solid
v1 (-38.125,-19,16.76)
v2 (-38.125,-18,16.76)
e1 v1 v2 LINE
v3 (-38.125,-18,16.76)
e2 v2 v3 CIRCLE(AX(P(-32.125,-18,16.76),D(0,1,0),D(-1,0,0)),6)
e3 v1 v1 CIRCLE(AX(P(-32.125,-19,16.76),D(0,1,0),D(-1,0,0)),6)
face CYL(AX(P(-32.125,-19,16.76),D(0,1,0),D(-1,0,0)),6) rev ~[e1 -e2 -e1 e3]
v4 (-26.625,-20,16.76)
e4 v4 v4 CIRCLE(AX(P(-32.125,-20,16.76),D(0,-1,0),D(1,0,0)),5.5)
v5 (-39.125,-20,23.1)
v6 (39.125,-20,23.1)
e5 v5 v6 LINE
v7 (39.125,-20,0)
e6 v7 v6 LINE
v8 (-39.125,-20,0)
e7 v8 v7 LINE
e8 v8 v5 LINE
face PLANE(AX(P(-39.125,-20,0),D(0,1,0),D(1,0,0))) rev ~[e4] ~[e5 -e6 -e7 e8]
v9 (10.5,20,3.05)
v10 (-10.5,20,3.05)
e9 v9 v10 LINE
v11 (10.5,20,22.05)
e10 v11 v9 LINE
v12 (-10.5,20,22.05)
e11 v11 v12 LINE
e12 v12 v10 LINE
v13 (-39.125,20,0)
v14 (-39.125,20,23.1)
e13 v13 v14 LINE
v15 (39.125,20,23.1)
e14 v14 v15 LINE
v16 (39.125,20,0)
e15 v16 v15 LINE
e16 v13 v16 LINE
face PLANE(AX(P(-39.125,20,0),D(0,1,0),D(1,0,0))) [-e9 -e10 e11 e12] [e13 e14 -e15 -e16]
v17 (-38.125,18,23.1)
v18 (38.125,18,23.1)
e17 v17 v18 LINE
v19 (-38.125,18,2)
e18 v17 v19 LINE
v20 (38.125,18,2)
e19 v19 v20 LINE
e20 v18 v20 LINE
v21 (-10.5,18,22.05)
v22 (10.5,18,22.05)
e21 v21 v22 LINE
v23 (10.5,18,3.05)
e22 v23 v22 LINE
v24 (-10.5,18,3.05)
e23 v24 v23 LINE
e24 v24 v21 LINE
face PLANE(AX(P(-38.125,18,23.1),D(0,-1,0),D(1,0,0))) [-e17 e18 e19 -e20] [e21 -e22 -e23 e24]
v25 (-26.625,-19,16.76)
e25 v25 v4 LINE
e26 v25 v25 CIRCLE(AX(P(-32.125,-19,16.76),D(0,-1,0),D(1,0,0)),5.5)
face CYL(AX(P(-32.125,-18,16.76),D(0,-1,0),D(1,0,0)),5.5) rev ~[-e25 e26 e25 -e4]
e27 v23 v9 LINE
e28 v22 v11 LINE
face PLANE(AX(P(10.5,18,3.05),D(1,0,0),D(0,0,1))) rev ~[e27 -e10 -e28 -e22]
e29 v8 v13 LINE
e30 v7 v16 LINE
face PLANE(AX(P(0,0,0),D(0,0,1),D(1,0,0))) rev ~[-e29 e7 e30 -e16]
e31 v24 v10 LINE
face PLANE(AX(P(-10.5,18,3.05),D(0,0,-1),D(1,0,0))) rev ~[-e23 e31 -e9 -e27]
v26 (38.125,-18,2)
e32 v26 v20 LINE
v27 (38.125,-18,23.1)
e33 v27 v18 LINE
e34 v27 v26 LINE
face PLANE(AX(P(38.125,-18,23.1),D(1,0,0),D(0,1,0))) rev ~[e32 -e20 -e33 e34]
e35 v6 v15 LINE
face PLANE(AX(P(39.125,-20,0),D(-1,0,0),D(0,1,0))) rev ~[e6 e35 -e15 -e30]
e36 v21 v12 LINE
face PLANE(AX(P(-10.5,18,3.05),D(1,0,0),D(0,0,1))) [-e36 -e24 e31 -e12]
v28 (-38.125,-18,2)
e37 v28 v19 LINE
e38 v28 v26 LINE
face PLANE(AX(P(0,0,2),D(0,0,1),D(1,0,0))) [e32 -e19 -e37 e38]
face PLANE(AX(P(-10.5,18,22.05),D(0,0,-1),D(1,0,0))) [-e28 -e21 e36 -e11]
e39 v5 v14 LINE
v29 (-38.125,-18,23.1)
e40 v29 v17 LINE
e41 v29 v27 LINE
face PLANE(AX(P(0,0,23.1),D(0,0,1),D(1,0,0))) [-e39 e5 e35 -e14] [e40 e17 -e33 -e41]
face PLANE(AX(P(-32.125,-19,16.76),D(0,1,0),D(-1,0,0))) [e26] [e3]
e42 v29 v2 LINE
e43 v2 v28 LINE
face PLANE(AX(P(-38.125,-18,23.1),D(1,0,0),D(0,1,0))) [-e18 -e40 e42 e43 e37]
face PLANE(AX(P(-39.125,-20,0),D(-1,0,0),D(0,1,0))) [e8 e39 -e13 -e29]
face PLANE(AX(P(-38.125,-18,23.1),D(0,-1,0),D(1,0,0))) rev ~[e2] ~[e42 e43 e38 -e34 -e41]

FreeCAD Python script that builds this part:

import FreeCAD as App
import Part
import Sketcher
from FreeCAD import Vector

doc = App.newDocument("Part")
body = doc.addObject("PartDesign::Body", "Body")

# Sketch on XY plane
sketch1 = body.newObject("Sketcher::SketchObject", "Sketch")
sketch1.AttachmentSupport = (doc.getObject("XY_Plane"), [""])
sketch1.MapMode = "FlatFace"
sketch1.addGeometry([
    Part.LineSegment(Vector(-39.125, 20, 0), Vector(-39.125, -20, 0)),
    Part.LineSegment(Vector(-39.125, -20, 0), Vector(39.125, -20, 0)),
    Part.LineSegment(Vector(39.125, -20, 0), Vector(39.125, 20, 0)),
    Part.LineSegment(Vector(39.125, 20, 0), Vector(-39.125, 20, 0)),
], False)
sketch1.addConstraint([
    Sketcher.Constraint("Coincident", 0, 2, 1, 1),
    Sketcher.Constraint("Coincident", 1, 2, 2, 1),
    Sketcher.Constraint("Coincident", 2, 2, 3, 1),
    Sketcher.Constraint("Coincident", 3, 2, 0, 1),
    Sketcher.Constraint("Vertical", 0),
    Sketcher.Constraint("Horizontal", 1),
    Sketcher.Constraint("Vertical", 2),
    Sketcher.Constraint("Horizontal", 3),
    Sketcher.Constraint("Symmetric", 0, 2, 2, 2, -1, 1),
    Sketcher.Constraint("DistanceY", 0, 2, 0, 1, 40.0),
    Sketcher.Constraint("DistanceX", 1, 1, 1, 2, 78.25),
])
pad1 = body.newObject("PartDesign::Pad", "Pad")
pad1.Profile = sketch1
pad1.Length = 23.1

# Sketch on XY plane
sketch2 = body.newObject("Sketcher::SketchObject", "Sketch001")
sketch2.AttachmentSupport = (doc.getObject("XY_Plane"), [""])
sketch2.MapMode = "FlatFace"
sketch2.AttachmentOffset = App.Placement(Vector(0, 0, 23.1), App.Rotation())
sketch2.addGeometry([
    Part.LineSegment(Vector(-38.125, 18, 0), Vector(-38.125, -18, 0)),
    Part.LineSegment(Vector(-38.125, -18, 0), Vector(38.125, -18, 0)),
    Part.LineSegment(Vector(38.125, -18, 0), Vector(38.125, 18, 0)),
    Part.LineSegment(Vector(38.125, 18, 0), Vector(-38.125, 18, 0)),
], False)
sketch2.addConstraint([
    Sketcher.Constraint("Coincident", 0, 2, 1, 1),
    Sketcher.Constraint("Coincident", 1, 2, 2, 1),
    Sketcher.Constraint("Coincident", 2, 2, 3, 1),
    Sketcher.Constraint("Coincident", 3, 2, 0, 1),
    Sketcher.Constraint("Vertical", 0),
    Sketcher.Constraint("Horizontal", 1),
    Sketcher.Constraint("Vertical", 2),
    Sketcher.Constraint("Horizontal", 3),
    Sketcher.Constraint("Symmetric", 0, 2, 2, 2, -1, 1),
    Sketcher.Constraint("DistanceY", 0, 2, 0, 1, 36.0),
    Sketcher.Constraint("DistanceX", 1, 1, 1, 2, 76.25),
])
pocket1 = body.newObject("PartDesign::Pocket", "Pocket")
pocket1.Profile = sketch2
pocket1.Length = 21.1

# Sketch on XZ plane
sketch3 = body.newObject("Sketcher::SketchObject", "Sketch002")
sketch3.AttachmentSupport = (doc.getObject("XZ_Plane"), [""])
sketch3.MapMode = "FlatFace"
sketch3.AttachmentOffset = App.Placement(Vector(0, 0, 18), App.Rotation())
sketch3.addGeometry(Part.Circle(Vector(-32.125, 16.76, 0), Vector(0, 0, 1), 5.5), False)
sketch3.addConstraint([
    Sketcher.Constraint("Diameter", 0, 11.0),
    Sketcher.Constraint("DistanceY", -1, 1, 0, 3, 16.76),
    Sketcher.Constraint("DistanceX", 0, 3, -1, 1, 32.125),
])
doc.recompute()
hole = body.newObject("PartDesign::Hole", "Hole")
hole.Profile = sketch3
hole.ThreadType = "None"
hole.Diameter = 11
hole.DepthType = "Dimension"
hole.Depth = 10
hole.DrillPoint = "Flat"
hole.HoleCutType = "Counterbore"
hole.HoleCutDiameter = 12
hole.HoleCutDepth = 1
hole.Reversed = True

# Sketch on XZ plane
sketch4 = body.newObject("Sketcher::SketchObject", "Sketch003")
sketch4.AttachmentSupport = (doc.getObject("XZ_Plane"), [""])
sketch4.MapMode = "FlatFace"
sketch4.AttachmentOffset = App.Placement(Vector(0, 0, -18), App.Rotation())
sketch4.addGeometry([
    Part.LineSegment(Vector(-10.5, 22.05, 0), Vector(-10.5, 3.05, 0)),
    Part.LineSegment(Vector(-10.5, 3.05, 0), Vector(10.5, 3.05, 0)),
    Part.LineSegment(Vector(10.5, 3.05, 0), Vector(10.5, 22.05, 0)),
    Part.LineSegment(Vector(10.5, 22.05, 0), Vector(-10.5, 22.05, 0)),
], False)
sketch4.addConstraint([
    Sketcher.Constraint("Coincident", 0, 2, 1, 1),
    Sketcher.Constraint("Coincident", 1, 2, 2, 1),
    Sketcher.Constraint("Coincident", 2, 2, 3, 1),
    Sketcher.Constraint("Coincident", 3, 2, 0, 1),
    Sketcher.Constraint("Vertical", 0),
    Sketcher.Constraint("Horizontal", 1),
    Sketcher.Constraint("Vertical", 2),
    Sketcher.Constraint("Horizontal", 3),
    Sketcher.Constraint("DistanceX", 1, 1, 1, 2, 21.0),
    Sketcher.Constraint("DistanceY", 0, 2, 0, 1, 19.0),
    Sketcher.Constraint("DistanceX", 0, 2, -1, 1, 10.5),
    Sketcher.Constraint("DistanceY", -1, 1, 0, 2, 3.05),
])
pocket2 = body.newObject("PartDesign::Pocket", "Pocket001")
pocket2.Profile = sketch4
pocket2.Length = 25.4
pocket3 = body.newObject("PartDesign::Pocket", "Pocket002")
pocket3.Profile = sketch4
pocket3.Length = 25.4

doc.recompute()
